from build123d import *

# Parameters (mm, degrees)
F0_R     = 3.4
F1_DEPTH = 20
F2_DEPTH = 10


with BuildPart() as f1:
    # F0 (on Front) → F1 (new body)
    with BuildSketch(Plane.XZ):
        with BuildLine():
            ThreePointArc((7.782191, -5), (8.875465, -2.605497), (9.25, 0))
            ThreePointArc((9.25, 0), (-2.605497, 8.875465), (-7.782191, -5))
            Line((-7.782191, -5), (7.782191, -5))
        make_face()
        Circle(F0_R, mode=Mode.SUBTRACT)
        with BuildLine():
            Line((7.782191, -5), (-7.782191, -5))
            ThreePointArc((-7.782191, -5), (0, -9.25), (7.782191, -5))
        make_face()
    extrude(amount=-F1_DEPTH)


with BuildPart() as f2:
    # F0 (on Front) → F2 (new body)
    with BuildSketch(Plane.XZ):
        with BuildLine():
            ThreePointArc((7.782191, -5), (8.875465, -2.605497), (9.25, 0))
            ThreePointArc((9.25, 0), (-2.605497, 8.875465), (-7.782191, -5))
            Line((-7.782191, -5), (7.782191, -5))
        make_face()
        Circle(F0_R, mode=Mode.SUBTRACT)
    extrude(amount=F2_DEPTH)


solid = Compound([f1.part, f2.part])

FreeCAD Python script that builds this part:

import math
import FreeCAD as App
import Part
import Sketcher

V = App.Vector
Q = App.Units.Quantity

doc = App.newDocument("Part")
params = doc.addObject("Spreadsheet::Sheet", "Params")
for row, (alias, value) in enumerate([
    ("sketch1_diameter", "6.8 mm"),
    ("sketch1_radius", "9.25 mm"),
    ("pad1_length", "20 mm"),
    ("sketch2_diameter", "6.8 mm"),
    ("sketch2_radius", "9.25 mm"),
    ("pad2_length", "10 mm"),
], start=1):
    params.set(f"A{row}", alias)
    params.set(f"B{row}", "=" + value)
    params.setAlias(f"B{row}", alias)

body = doc.addObject("PartDesign::Body", "Body")

# Sketch on XZ plane
sketch1 = body.newObject("Sketcher::SketchObject", "Sketch")
sketch1.AttachmentSupport = (doc.getObject("XZ_Plane"), [""])
sketch1.MapMode = "FlatFace"
sketch1.addGeometry([
    Part.ArcOfCircle(Part.Circle(V(-0.000006, 0.000002, 0), V(0, 0, 1), 9.250006), math.radians(-32.720435), math.radians(-0.000013)),
    Part.ArcOfCircle(Part.Circle(V(0, 0, 0), V(0, 0, 1), 9.25), math.radians(0.000001), math.radians(212.720443)),
    Part.ArcOfCircle(Part.Circle(V(0, 0, 0), V(0, 0, 1), 9.25), math.radians(-147.279558), math.radians(-32.720442)),
    Part.Circle(V(0, 0, 0), V(0, 0, 1), 3.4),
], False)
sketch1.addConstraint([
    Sketcher.Constraint("Tangent", 0, 2, 1, 1),
    Sketcher.Constraint("Tangent", 1, 2, 2, 1),
    Sketcher.Constraint("Tangent", 2, 2, 0, 1),
    Sketcher.Constraint("Coincident", 0, 3, -1, 1),
    Sketcher.Constraint("Coincident", 3, 3, -1, 1),
    Sketcher.Constraint("PointOnObject", 0, 2, -1),
    Sketcher.Constraint("Horizontal", 1, 2, 2, 2),
    Sketcher.Constraint("Diameter", 3, Q("6.8 mm")),
    Sketcher.Constraint("Radius", 1, Q("9.25 mm")),
    Sketcher.Constraint("DistanceY", 1, 2, -1, 1, Q("5 mm")),
])
sketch1.setExpression("Constraints[7]", "Params.sketch1_diameter")
sketch1.setExpression("Constraints[8]", "Params.sketch1_radius")
pad1 = body.newObject("PartDesign::Pad", "Pad")
pad1.Profile = sketch1
pad1.setExpression("Length", "Params.pad1_length")
pad1.Reversed = True
body2 = doc.addObject("PartDesign::Body", "Body001")

# Sketch on XZ plane
sketch2 = body2.newObject("Sketcher::SketchObject", "Sketch001")
sketch2.AttachmentSupport = (doc.getObject("XZ_Plane001"), [""])
sketch2.MapMode = "FlatFace"
sketch2.addGeometry([
    Part.ArcOfCircle(Part.Circle(V(-0.000006, 0.000002, 0), V(0, 0, 1), 9.250006), math.radians(-32.720435), math.radians(-0.000013)),
    Part.ArcOfCircle(Part.Circle(V(0, 0, 0), V(0, 0, 1), 9.25), math.radians(0.000001), math.radians(212.720443)),
    Part.LineSegment(V(-7.782191, -5, 0), V(7.782191, -5, 0)),
    Part.Circle(V(0, 0, 0), V(0, 0, 1), 3.4),
], False)
sketch2.addConstraint([
    Sketcher.Constraint("Tangent", 0, 2, 1, 1),
    Sketcher.Constraint("Coincident", 1, 2, 2, 1),
    Sketcher.Constraint("Coincident", 2, 2, 0, 1),
    Sketcher.Constraint("Horizontal", 2),
    Sketcher.Constraint("Coincident", 0, 3, -1, 1),
    Sketcher.Constraint("Coincident", 3, 3, -1, 1),
    Sketcher.Constraint("PointOnObject", 0, 2, -1),
    Sketcher.Constraint("Diameter", 3, Q("6.8 mm")),
    Sketcher.Constraint("Radius", 1, Q("9.25 mm")),
    Sketcher.Constraint("DistanceY", 1, 2, -1, 1, Q("5 mm")),
    Sketcher.Constraint("DistanceX", -1, 1, 0, 2, Q("9.25 mm")),
])
sketch2.setExpression("Constraints[7]", "Params.sketch2_diameter")
sketch2.setExpression("Constraints[8]", "Params.sketch2_radius")
pad2 = body2.newObject("PartDesign::Pad", "Pad001")
pad2.Profile = sketch2
pad2.setExpression("Length", "Params.pad2_length")

doc.recompute()
